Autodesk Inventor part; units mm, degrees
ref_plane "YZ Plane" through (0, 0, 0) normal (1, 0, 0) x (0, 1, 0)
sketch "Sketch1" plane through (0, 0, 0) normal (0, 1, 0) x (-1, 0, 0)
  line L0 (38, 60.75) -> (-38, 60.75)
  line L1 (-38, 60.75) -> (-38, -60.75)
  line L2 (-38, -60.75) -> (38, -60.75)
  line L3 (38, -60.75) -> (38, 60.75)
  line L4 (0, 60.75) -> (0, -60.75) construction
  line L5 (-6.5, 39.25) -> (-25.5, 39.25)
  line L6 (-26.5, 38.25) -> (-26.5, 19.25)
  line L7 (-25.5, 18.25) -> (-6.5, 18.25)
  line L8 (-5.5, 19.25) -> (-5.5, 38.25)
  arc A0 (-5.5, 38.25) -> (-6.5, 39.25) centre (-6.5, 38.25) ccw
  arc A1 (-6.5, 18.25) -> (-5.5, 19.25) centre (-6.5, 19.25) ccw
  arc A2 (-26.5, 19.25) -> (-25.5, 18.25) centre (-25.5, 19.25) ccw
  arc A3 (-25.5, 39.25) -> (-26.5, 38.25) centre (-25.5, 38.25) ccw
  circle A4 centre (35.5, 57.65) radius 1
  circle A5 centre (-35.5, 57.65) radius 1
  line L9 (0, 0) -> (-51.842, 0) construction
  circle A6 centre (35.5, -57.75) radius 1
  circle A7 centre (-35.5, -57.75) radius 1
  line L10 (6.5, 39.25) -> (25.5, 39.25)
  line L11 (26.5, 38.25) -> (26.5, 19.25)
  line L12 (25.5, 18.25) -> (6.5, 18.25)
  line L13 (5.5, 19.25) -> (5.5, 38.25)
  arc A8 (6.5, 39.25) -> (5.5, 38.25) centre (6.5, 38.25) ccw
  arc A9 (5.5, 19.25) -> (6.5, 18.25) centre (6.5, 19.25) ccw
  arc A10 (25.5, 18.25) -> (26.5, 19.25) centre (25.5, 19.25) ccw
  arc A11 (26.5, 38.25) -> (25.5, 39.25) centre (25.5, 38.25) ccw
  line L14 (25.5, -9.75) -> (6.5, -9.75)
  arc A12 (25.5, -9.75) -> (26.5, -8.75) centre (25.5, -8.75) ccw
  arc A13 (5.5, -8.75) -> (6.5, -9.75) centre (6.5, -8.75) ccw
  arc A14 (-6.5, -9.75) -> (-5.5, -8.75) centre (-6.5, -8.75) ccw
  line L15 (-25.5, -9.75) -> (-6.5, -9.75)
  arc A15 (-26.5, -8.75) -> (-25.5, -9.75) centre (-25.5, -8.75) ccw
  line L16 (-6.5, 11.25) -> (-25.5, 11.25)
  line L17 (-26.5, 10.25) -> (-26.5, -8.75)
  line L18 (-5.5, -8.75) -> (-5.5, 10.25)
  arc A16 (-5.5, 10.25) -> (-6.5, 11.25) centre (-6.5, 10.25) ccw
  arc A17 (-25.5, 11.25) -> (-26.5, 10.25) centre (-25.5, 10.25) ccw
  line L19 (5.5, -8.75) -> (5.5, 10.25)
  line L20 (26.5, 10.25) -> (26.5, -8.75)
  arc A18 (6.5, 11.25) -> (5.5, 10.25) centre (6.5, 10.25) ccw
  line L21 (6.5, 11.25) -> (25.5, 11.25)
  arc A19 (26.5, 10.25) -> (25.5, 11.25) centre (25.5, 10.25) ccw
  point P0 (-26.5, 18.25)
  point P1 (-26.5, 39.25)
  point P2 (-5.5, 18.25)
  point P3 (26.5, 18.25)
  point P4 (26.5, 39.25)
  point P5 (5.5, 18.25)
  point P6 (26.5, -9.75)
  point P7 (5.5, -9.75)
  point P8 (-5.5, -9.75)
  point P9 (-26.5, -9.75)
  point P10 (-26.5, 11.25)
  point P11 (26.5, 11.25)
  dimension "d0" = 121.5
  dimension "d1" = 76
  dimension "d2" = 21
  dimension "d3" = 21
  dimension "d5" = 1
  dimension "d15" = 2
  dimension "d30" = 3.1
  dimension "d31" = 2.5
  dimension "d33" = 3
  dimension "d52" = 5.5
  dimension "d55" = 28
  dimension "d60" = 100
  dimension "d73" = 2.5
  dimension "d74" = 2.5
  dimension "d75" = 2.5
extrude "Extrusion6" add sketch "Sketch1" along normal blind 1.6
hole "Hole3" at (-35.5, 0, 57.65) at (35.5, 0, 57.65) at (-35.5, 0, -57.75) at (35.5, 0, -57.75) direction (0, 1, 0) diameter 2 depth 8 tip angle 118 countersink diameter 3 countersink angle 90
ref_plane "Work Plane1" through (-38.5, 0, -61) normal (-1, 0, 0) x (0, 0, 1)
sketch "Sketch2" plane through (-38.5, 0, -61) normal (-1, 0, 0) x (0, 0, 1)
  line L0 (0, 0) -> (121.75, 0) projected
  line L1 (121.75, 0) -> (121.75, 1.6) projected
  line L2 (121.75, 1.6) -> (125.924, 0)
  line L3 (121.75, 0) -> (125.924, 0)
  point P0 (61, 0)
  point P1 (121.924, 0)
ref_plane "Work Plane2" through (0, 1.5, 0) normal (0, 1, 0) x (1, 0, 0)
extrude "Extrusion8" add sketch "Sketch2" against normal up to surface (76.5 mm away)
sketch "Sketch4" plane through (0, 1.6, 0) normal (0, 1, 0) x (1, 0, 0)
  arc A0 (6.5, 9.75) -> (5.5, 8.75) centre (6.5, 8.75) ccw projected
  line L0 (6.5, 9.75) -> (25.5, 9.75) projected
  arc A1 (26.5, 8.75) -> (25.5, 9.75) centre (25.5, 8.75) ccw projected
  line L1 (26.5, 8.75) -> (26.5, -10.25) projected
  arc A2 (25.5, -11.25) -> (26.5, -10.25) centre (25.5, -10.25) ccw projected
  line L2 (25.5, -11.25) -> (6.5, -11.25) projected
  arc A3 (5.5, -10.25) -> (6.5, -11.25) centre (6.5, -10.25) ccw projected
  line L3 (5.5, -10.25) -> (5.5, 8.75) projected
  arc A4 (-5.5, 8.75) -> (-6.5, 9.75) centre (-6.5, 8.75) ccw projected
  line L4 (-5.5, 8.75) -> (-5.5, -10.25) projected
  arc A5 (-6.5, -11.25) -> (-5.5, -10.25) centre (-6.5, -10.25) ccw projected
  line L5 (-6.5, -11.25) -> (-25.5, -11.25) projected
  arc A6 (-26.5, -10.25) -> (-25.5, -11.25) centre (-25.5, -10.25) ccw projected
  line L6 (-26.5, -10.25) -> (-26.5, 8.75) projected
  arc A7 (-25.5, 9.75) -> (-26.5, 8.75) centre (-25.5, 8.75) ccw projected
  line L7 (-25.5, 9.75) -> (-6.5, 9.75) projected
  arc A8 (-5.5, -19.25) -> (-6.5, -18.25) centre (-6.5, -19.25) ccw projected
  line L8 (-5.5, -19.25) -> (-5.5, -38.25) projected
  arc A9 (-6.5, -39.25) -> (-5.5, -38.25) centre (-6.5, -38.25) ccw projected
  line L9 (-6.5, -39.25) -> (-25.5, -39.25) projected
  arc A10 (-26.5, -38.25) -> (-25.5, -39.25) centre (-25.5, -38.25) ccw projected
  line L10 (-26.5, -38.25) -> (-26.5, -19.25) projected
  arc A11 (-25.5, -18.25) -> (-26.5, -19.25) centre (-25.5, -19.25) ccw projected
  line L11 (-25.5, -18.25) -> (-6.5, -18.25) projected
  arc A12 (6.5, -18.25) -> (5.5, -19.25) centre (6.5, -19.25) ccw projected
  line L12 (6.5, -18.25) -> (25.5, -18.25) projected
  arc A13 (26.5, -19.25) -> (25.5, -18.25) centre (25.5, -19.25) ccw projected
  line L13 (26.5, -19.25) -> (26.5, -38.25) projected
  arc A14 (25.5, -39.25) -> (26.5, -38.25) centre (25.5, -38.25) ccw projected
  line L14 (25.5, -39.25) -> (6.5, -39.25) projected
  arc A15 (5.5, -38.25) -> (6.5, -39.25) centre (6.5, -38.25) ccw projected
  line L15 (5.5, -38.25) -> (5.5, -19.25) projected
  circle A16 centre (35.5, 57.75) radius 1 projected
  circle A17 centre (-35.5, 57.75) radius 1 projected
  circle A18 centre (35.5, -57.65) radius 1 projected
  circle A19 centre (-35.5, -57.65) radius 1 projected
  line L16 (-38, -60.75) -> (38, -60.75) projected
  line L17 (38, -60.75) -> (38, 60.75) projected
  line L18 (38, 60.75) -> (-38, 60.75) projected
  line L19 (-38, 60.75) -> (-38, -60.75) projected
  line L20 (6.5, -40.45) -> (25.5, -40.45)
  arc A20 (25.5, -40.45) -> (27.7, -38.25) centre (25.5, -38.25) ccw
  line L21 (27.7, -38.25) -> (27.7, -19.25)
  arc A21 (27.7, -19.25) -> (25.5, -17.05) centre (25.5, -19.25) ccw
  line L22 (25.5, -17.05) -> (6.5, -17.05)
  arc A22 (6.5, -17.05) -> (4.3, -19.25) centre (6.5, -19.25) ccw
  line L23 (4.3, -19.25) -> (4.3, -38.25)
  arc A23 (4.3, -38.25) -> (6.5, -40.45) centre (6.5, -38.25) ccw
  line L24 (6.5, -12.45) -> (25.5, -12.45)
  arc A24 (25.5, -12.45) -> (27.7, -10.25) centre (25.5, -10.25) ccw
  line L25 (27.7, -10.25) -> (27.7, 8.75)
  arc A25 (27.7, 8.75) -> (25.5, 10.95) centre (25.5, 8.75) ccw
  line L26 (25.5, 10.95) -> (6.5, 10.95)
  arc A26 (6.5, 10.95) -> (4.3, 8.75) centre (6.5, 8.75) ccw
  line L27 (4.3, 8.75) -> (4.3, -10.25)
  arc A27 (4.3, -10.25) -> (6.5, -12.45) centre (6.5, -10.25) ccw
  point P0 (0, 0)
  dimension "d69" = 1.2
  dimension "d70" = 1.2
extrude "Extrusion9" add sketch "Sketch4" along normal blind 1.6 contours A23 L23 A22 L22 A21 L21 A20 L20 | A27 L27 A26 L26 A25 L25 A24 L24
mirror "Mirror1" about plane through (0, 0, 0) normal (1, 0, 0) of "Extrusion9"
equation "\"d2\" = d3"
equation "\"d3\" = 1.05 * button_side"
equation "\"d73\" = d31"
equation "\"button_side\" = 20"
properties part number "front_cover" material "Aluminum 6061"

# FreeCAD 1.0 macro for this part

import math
import FreeCAD as App
import Part
import Sketcher

V = App.Vector
Q = App.Units.Quantity

doc = App.newDocument("Part")
body = doc.addObject("PartDesign::Body", "Body")

# Sketch on XZ plane
sketch1 = doc.addObject("Sketcher::SketchObject", "Sketch")
body.addObject(sketch1)
sketch1.AttachmentSupport = (doc.XZ_Plane, [""])
sketch1.MapMode = "FlatFace"
sketch1.addGeometry([
    Part.LineSegment(V(-38, -60.75, 0), V(-38, 60.75, 0)),  # 0
    Part.LineSegment(V(-38, 60.75, 0), V(38, 60.75, 0)),  # 1
    Part.LineSegment(V(38, 60.75, 0), V(38, -60.75, 0)),  # 2
    Part.LineSegment(V(38, -60.75, 0), V(-38, -60.75, 0)),  # 3
    Part.Circle(V(35.5, -57.75, 0), V(0, 0, 1), 1),  # 4
    Part.Circle(V(-35.5, -57.75, 0), V(0, 0, 1), 1),  # 5
    Part.ArcOfCircle(Part.Circle(V(6.5, -8.75, 0), V(0, 0, 1), 1), math.radians(180), math.radians(270)),  # 6
    Part.LineSegment(V(6.5, -9.75, 0), V(25.5, -9.75, 0)),  # 7
    Part.ArcOfCircle(Part.Circle(V(25.5, -8.75, 0), V(0, 0, 1), 1), math.radians(-90), math.radians(0)),  # 8
    Part.LineSegment(V(26.5, -8.75, 0), V(26.5, 10.25, 0)),  # 9
    Part.ArcOfCircle(Part.Circle(V(25.5, 10.25, 0), V(0, 0, 1), 1), math.radians(0), math.radians(90)),  # 10
    Part.LineSegment(V(25.5, 11.25, 0), V(6.5, 11.25, 0)),  # 11
    Part.ArcOfCircle(Part.Circle(V(6.5, 10.25, 0), V(0, 0, 1), 1), math.radians(90), math.radians(180)),  # 12
    Part.LineSegment(V(5.5, 10.25, 0), V(5.5, -8.75, 0)),  # 13
    Part.LineSegment(V(25.5, 39.25, 0), V(6.5, 39.25, 0)),  # 14
    Part.ArcOfCircle(Part.Circle(V(6.5, 38.25, 0), V(0, 0, 1), 1), math.radians(90), math.radians(180)),  # 15
    Part.LineSegment(V(5.5, 38.25, 0), V(5.5, 19.25, 0)),  # 16
    Part.ArcOfCircle(Part.Circle(V(6.5, 19.25, 0), V(0, 0, 1), 1), math.radians(180), math.radians(270)),  # 17
    Part.LineSegment(V(6.5, 18.25, 0), V(25.5, 18.25, 0)),  # 18
    Part.ArcOfCircle(Part.Circle(V(25.5, 19.25, 0), V(0, 0, 1), 1), math.radians(-90), math.radians(0)),  # 19
    Part.LineSegment(V(26.5, 19.25, 0), V(26.5, 38.25, 0)),  # 20
    Part.ArcOfCircle(Part.Circle(V(25.5, 38.25, 0), V(0, 0, 1), 1), math.radians(0), math.radians(90)),  # 21
    Part.Circle(V(35.5, 57.65, 0), V(0, 0, 1), 1),  # 22
    Part.ArcOfCircle(Part.Circle(V(-25.5, -8.75, 0), V(0, 0, 1), 1), math.radians(180), math.radians(270)),  # 23
    Part.LineSegment(V(-25.5, -9.75, 0), V(-6.5, -9.75, 0)),  # 24
    Part.ArcOfCircle(Part.Circle(V(-6.5, -8.75, 0), V(0, 0, 1), 1), math.radians(-90), math.radians(0)),  # 25
    Part.LineSegment(V(-5.5, -8.75, 0), V(-5.5, 10.25, 0)),  # 26
    Part.ArcOfCircle(Part.Circle(V(-6.5, 10.25, 0), V(0, 0, 1), 1), math.radians(0), math.radians(90)),  # 27
    Part.LineSegment(V(-6.5, 11.25, 0), V(-25.5, 11.25, 0)),  # 28
    Part.ArcOfCircle(Part.Circle(V(-25.5, 10.25, 0), V(0, 0, 1), 1), math.radians(90), math.radians(180)),  # 29
    Part.LineSegment(V(-26.5, 10.25, 0), V(-26.5, -8.75, 0)),  # 30
    Part.ArcOfCircle(Part.Circle(V(-6.5, 38.25, 0), V(0, 0, 1), 1), math.radians(0), math.radians(90)),  # 31
    Part.LineSegment(V(-6.5, 39.25, 0), V(-25.5, 39.25, 0)),  # 32
    Part.ArcOfCircle(Part.Circle(V(-25.5, 38.25, 0), V(0, 0, 1), 1), math.radians(90), math.radians(180)),  # 33
    Part.LineSegment(V(-26.5, 38.25, 0), V(-26.5, 19.25, 0)),  # 34
    Part.ArcOfCircle(Part.Circle(V(-25.5, 19.25, 0), V(0, 0, 1), 1), math.radians(180), math.radians(270)),  # 35
    Part.LineSegment(V(-25.5, 18.25, 0), V(-6.5, 18.25, 0)),  # 36
    Part.ArcOfCircle(Part.Circle(V(-6.5, 19.25, 0), V(0, 0, 1), 1), math.radians(-90), math.radians(0)),  # 37
    Part.LineSegment(V(-5.5, 19.25, 0), V(-5.5, 38.25, 0)),  # 38
    Part.Circle(V(-35.5, 57.65, 0), V(0, 0, 1), 1),  # 39
], False)
sketch1.addConstraint([
    Sketcher.Constraint("Coincident", 0, 2, 1, 1),
    Sketcher.Constraint("Coincident", 1, 2, 2, 1),
    Sketcher.Constraint("Coincident", 2, 2, 3, 1),
    Sketcher.Constraint("Coincident", 3, 2, 0, 1),
    Sketcher.Constraint("Tangent", 6, 2, 7, 1),
    Sketcher.Constraint("Tangent", 7, 2, 8, 1),
    Sketcher.Constraint("Tangent", 8, 2, 9, 1),
    Sketcher.Constraint("Tangent", 9, 2, 10, 1),
    Sketcher.Constraint("Tangent", 10, 2, 11, 1),
    Sketcher.Constraint("Tangent", 11, 2, 12, 1),
    Sketcher.Constraint("Tangent", 12, 2, 13, 1),
    Sketcher.Constraint("Tangent", 13, 2, 6, 1),
    Sketcher.Constraint("Tangent", 14, 2, 15, 1),
    Sketcher.Constraint("Tangent", 15, 2, 16, 1),
    Sketcher.Constraint("Tangent", 16, 2, 17, 1),
    Sketcher.Constraint("Tangent", 17, 2, 18, 1),
    Sketcher.Constraint("Tangent", 18, 2, 19, 1),
    Sketcher.Constraint("Tangent", 19, 2, 20, 1),
    Sketcher.Constraint("Tangent", 20, 2, 21, 1),
    Sketcher.Constraint("Tangent", 21, 2, 14, 1),
    Sketcher.Constraint("Tangent", 23, 2, 24, 1),
    Sketcher.Constraint("Tangent", 24, 2, 25, 1),
    Sketcher.Constraint("Tangent", 25, 2, 26, 1),
    Sketcher.Constraint("Tangent", 26, 2, 27, 1),
    Sketcher.Constraint("Tangent", 27, 2, 28, 1),
    Sketcher.Constraint("Tangent", 28, 2, 29, 1),
    Sketcher.Constraint("Tangent", 29, 2, 30, 1),
    Sketcher.Constraint("Tangent", 30, 2, 23, 1),
    Sketcher.Constraint("Tangent", 31, 2, 32, 1),
    Sketcher.Constraint("Tangent", 32, 2, 33, 1),
    Sketcher.Constraint("Tangent", 33, 2, 34, 1),
    Sketcher.Constraint("Tangent", 34, 2, 35, 1),
    Sketcher.Constraint("Tangent", 35, 2, 36, 1),
    Sketcher.Constraint("Tangent", 36, 2, 37, 1),
    Sketcher.Constraint("Tangent", 37, 2, 38, 1),
    Sketcher.Constraint("Tangent", 38, 2, 31, 1),
    Sketcher.Constraint("Vertical", 0),
    Sketcher.Constraint("Horizontal", 1),
    Sketcher.Constraint("Vertical", 2),
    Sketcher.Constraint("Horizontal", 3),
    Sketcher.Constraint("Horizontal", 7),
    Sketcher.Constraint("Vertical", 9),
    Sketcher.Constraint("Horizontal", 11),
    Sketcher.Constraint("Vertical", 13),
    Sketcher.Constraint("Horizontal", 14),
    Sketcher.Constraint("Vertical", 16),
    Sketcher.Constraint("Horizontal", 18),
    Sketcher.Constraint("Vertical", 20),
    Sketcher.Constraint("Horizontal", 24),
    Sketcher.Constraint("Vertical", 26),
    Sketcher.Constraint("Horizontal", 28),
    Sketcher.Constraint("Vertical", 30),
    Sketcher.Constraint("Horizontal", 32),
    Sketcher.Constraint("Vertical", 34),
    Sketcher.Constraint("Horizontal", 36),
    Sketcher.Constraint("Vertical", 38),
    Sketcher.Constraint("Equal", 4, 5),
    Sketcher.Constraint("Equal", 5, 6),
    Sketcher.Constraint("Equal", 6, 8),
    Sketcher.Constraint("Equal", 8, 10),
    Sketcher.Constraint("Equal", 10, 12),
    Sketcher.Constraint("Equal", 12, 15),
    Sketcher.Constraint("Equal", 15, 17),
    Sketcher.Constraint("Equal", 17, 19),
    Sketcher.Constraint("Equal", 19, 21),
    Sketcher.Constraint("Equal", 21, 22),
    Sketcher.Constraint("Equal", 22, 23),
    Sketcher.Constraint("Equal", 23, 25),
    Sketcher.Constraint("Equal", 25, 27),
    Sketcher.Constraint("Equal", 27, 29),
    Sketcher.Constraint("Equal", 29, 31),
    Sketcher.Constraint("Equal", 31, 33),
    Sketcher.Constraint("Equal", 33, 35),
    Sketcher.Constraint("Equal", 35, 37),
    Sketcher.Constraint("Equal", 37, 39),
    Sketcher.Constraint("Symmetric", 0, 2, 2, 2, -1, 1),
    Sketcher.Constraint("Symmetric", 4, 3, 5, 3, -2),
    Sketcher.Constraint("Symmetric", 8, 3, 23, 3, -2),
    Sketcher.Constraint("Symmetric", 12, 3, 27, 3, -2),
    Sketcher.Constraint("Symmetric", 15, 3, 31, 3, -2),
    Sketcher.Constraint("Symmetric", 19, 3, 35, 3, -2),
    Sketcher.Constraint("Symmetric", 22, 3, 39, 3, -2),
    Sketcher.Constraint("Vertical", 12, 3, 15, 3),
    Sketcher.Constraint("Vertical", 10, 3, 19, 3),
    Sketcher.Constraint("Vertical", 4, 3, 22, 3),
    Sketcher.Constraint("Equal", 36, 9),
    Sketcher.Constraint("Equal", 13, 16),
    Sketcher.Constraint("Diameter", 4, Q("2 mm")),
    Sketcher.Constraint("DistanceX", 1, 1, 1, 2, Q("76 mm")),
    Sketcher.Constraint("DistanceY", 0, 1, 0, 2, Q("121.5 mm")),
    Sketcher.Constraint("DistanceX", 8, 3, 4, 3, Q("10 mm")),
    Sketcher.Constraint("DistanceY", 12, 3, 15, 3, Q("28 mm")),
    Sketcher.Constraint("DistanceY", 2, 2, 4, 3, Q("3 mm")),
    Sketcher.Constraint("DistanceX", -1, 1, 12, 2, Q("5.5 mm")),
    Sketcher.Constraint("DistanceX", 0, 2, 39, 3, Q("2.5 mm")),
    Sketcher.Constraint("DistanceY", 39, 3, 0, 2, Q("3.1 mm")),
    Sketcher.Constraint("DistanceY", 4, 3, 6, 3, Q("49 mm")),
])
pad1 = doc.addObject("PartDesign::Pad", "Pad")
body.addObject(pad1)
pad1.Profile = sketch1
pad1.Length = 1.6
pad1.Reversed = True

# Sketch on XZ plane
sketch2 = doc.addObject("Sketcher::SketchObject", "Sketch001")
body.addObject(sketch2)
sketch2.AttachmentSupport = (doc.XZ_Plane, [""])
sketch2.MapMode = "FlatFace"
sketch2.addGeometry([
    Part.Circle(V(-35.5, 57.65, 0), V(0, 0, 1), 1),
    Part.Circle(V(35.5, 57.65, 0), V(0, 0, 1), 1),
    Part.Circle(V(-35.5, -57.75, 0), V(0, 0, 1), 1),
    Part.Circle(V(35.5, -57.75, 0), V(0, 0, 1), 1),
], False)
sketch2.addConstraint([
    Sketcher.Constraint("Equal", 0, 1),
    Sketcher.Constraint("Equal", 1, 2),
    Sketcher.Constraint("Equal", 2, 3),
    Sketcher.Constraint("Symmetric", 0, 3, 1, 3, -2),
    Sketcher.Constraint("Symmetric", 2, 3, 3, 3, -2),
    Sketcher.Constraint("Vertical", 0, 3, 2, 3),
    Sketcher.Constraint("Diameter", 0, Q("2 mm")),
    Sketcher.Constraint("DistanceX", 0, 3, 1, 3, Q("71 mm")),
    Sketcher.Constraint("DistanceY", 2, 3, 0, 3, Q("115.4 mm")),
    Sketcher.Constraint("DistanceY", -1, 1, 0, 3, Q("57.65 mm")),
])
doc.recompute()
hole = doc.addObject("PartDesign::Hole", "Hole")
body.addObject(hole)
hole.Profile = sketch2
hole.ThreadType = "None"
hole.Diameter = 2
hole.DepthType = "Dimension"
hole.Depth = 8
hole.DrillPoint = "Angled"
hole.DrillPointAngle = 118
hole.HoleCutType = "Countersink"
hole.HoleCutDiameter = 3
hole.HoleCutCountersinkAngle = 90

# Sketch on YZ plane
sketch3 = doc.addObject("Sketcher::SketchObject", "Sketch002")
body.addObject(sketch3)
sketch3.AttachmentSupport = (doc.YZ_Plane, [""])
sketch3.MapMode = "FlatFace"
sketch3.AttachmentOffset = App.Placement(V(0, 0, -38.5), App.Rotation())
sketch3.addGeometry([
    Part.LineSegment(V(1.6, 60.75, 0), V(0, 60.75, 0)),
    Part.LineSegment(V(0, 60.75, 0), V(0, 64.924, 0)),
    Part.LineSegment(V(0, 64.924, 0), V(1.6, 60.75, 0)),
], False)
sketch3.addConstraint([
    Sketcher.Constraint("Coincident", 0, 2, 1, 1),
    Sketcher.Constraint("Coincident", 1, 2, 2, 1),
    Sketcher.Constraint("Coincident", 2, 2, 0, 1),
    Sketcher.Constraint("Horizontal", 0),
    Sketcher.Constraint("Vertical", 1),
    Sketcher.Constraint("PointOnObject", 0, 2, -2),
    Sketcher.Constraint("DistanceX", 0, 2, 0, 1, Q("1.6 mm")),
    Sketcher.Constraint("DistanceY", 1, 1, 1, 2, Q("4.174 mm")),
    Sketcher.Constraint("DistanceY", -1, 1, 0, 2, Q("60.75 mm")),
])
pad2 = doc.addObject("PartDesign::Pad", "Pad001")
body.addObject(pad2)
pad2.Profile = sketch3
pad2.Length = 76.5

# Sketch on XZ plane
sketch4 = doc.addObject("Sketcher::SketchObject", "Sketch003")
body.addObject(sketch4)
sketch4.AttachmentSupport = (doc.XZ_Plane, [""])
sketch4.MapMode = "FlatFace"
sketch4.AttachmentOffset = App.Placement(V(0, 0, -1.6), App.Rotation())
sketch4.addGeometry([
    Part.ArcOfCircle(Part.Circle(V(6.5, 38.25, 0), V(0, 0, 1), 2.2), math.radians(90), math.radians(180)),  # 0
    Part.LineSegment(V(6.5, 40.45, 0), V(25.5, 40.45, 0)),  # 1
    Part.ArcOfCircle(Part.Circle(V(25.5, 38.25, 0), V(0, 0, 1), 2.2), math.radians(0), math.radians(90)),  # 2
    Part.LineSegment(V(27.7, 38.25, 0), V(27.7, 19.25, 0)),  # 3
    Part.ArcOfCircle(Part.Circle(V(25.5, 19.25, 0), V(0, 0, 1), 2.2), math.radians(-90), math.radians(0)),  # 4
    Part.LineSegment(V(25.5, 17.05, 0), V(6.5, 17.05, 0)),  # 5
    Part.ArcOfCircle(Part.Circle(V(6.5, 19.25, 0), V(0, 0, 1), 2.2), math.radians(180), math.radians(270)),  # 6
    Part.LineSegment(V(4.3, 19.25, 0), V(4.3, 38.25, 0)),  # 7
    Part.ArcOfCircle(Part.Circle(V(6.5, 19.25, 0), V(0, 0, 1), 1), math.radians(180), math.radians(270)),  # 8
    Part.LineSegment(V(6.5, 18.25, 0), V(25.5, 18.25, 0)),  # 9
    Part.ArcOfCircle(Part.Circle(V(25.5, 19.25, 0), V(0, 0, 1), 1), math.radians(-90), math.radians(0)),  # 10
    Part.LineSegment(V(26.5, 19.25, 0), V(26.5, 38.25, 0)),  # 11
    Part.ArcOfCircle(Part.Circle(V(25.5, 38.25, 0), V(0, 0, 1), 1), math.radians(0), math.radians(90)),  # 12
    Part.LineSegment(V(25.5, 39.25, 0), V(6.5, 39.25, 0)),  # 13
    Part.ArcOfCircle(Part.Circle(V(6.5, 38.25, 0), V(0, 0, 1), 1), math.radians(90), math.radians(180)),  # 14
    Part.LineSegment(V(5.5, 38.25, 0), V(5.5, 19.25, 0)),  # 15
    Part.ArcOfCircle(Part.Circle(V(6.5, 10.25, 0), V(0, 0, 1), 2.2), math.radians(90), math.radians(180)),  # 16
    Part.LineSegment(V(6.5, 12.45, 0), V(25.5, 12.45, 0)),  # 17
    Part.ArcOfCircle(Part.Circle(V(25.5, 10.25, 0), V(0, 0, 1), 2.2), math.radians(0), math.radians(90)),  # 18
    Part.LineSegment(V(27.7, 10.25, 0), V(27.7, -8.75, 0)),  # 19
    Part.ArcOfCircle(Part.Circle(V(25.5, -8.75, 0), V(0, 0, 1), 2.2), math.radians(-90), math.radians(0)),  # 20
    Part.LineSegment(V(25.5, -10.95, 0), V(6.5, -10.95, 0)),  # 21
    Part.ArcOfCircle(Part.Circle(V(6.5, -8.75, 0), V(0, 0, 1), 2.2), math.radians(180), math.radians(270)),  # 22
    Part.LineSegment(V(4.3, -8.75, 0), V(4.3, 10.25, 0)),  # 23
    Part.ArcOfCircle(Part.Circle(V(6.5, -8.75, 0), V(0, 0, 1), 1), math.radians(180), math.radians(270)),  # 24
    Part.LineSegment(V(6.5, -9.75, 0), V(25.5, -9.75, 0)),  # 25
    Part.ArcOfCircle(Part.Circle(V(25.5, -8.75, 0), V(0, 0, 1), 1), math.radians(-90), math.radians(0)),  # 26
    Part.LineSegment(V(26.5, -8.75, 0), V(26.5, 10.25, 0)),  # 27
    Part.ArcOfCircle(Part.Circle(V(25.5, 10.25, 0), V(0, 0, 1), 1), math.radians(0), math.radians(90)),  # 28
    Part.LineSegment(V(25.5, 11.25, 0), V(6.5, 11.25, 0)),  # 29
    Part.ArcOfCircle(Part.Circle(V(6.5, 10.25, 0), V(0, 0, 1), 1), math.radians(90), math.radians(180)),  # 30
    Part.LineSegment(V(5.5, 10.25, 0), V(5.5, -8.75, 0)),  # 31
], False)
sketch4.addConstraint([
    Sketcher.Constraint("Tangent", 0, 1, 1, 1),
    Sketcher.Constraint("Tangent", 1, 2, 2, 2),
    Sketcher.Constraint("Tangent", 2, 1, 3, 1),
    Sketcher.Constraint("Tangent", 3, 2, 4, 2),
    Sketcher.Constraint("Tangent", 4, 1, 5, 1),
    Sketcher.Constraint("Tangent", 5, 2, 6, 2),
    Sketcher.Constraint("Tangent", 6, 1, 7, 1),
    Sketcher.Constraint("Tangent", 7, 2, 0, 2),
    Sketcher.Constraint("Tangent", 8, 2, 9, 1),
    Sketcher.Constraint("Tangent", 9, 2, 10, 1),
    Sketcher.Constraint("Tangent", 10, 2, 11, 1),
    Sketcher.Constraint("Tangent", 11, 2, 12, 1),
    Sketcher.Constraint("Tangent", 12, 2, 13, 1),
    Sketcher.Constraint("Tangent", 13, 2, 14, 1),
    Sketcher.Constraint("Tangent", 14, 2, 15, 1),
    Sketcher.Constraint("Tangent", 15, 2, 8, 1),
    Sketcher.Constraint("Tangent", 16, 1, 17, 1),
    Sketcher.Constraint("Tangent", 17, 2, 18, 2),
    Sketcher.Constraint("Tangent", 18, 1, 19, 1),
    Sketcher.Constraint("Tangent", 19, 2, 20, 2),
    Sketcher.Constraint("Tangent", 20, 1, 21, 1),
    Sketcher.Constraint("Tangent", 21, 2, 22, 2),
    Sketcher.Constraint("Tangent", 22, 1, 23, 1),
    Sketcher.Constraint("Tangent", 23, 2, 16, 2),
    Sketcher.Constraint("Tangent", 24, 2, 25, 1),
    Sketcher.Constraint("Tangent", 25, 2, 26, 1),
    Sketcher.Constraint("Tangent", 26, 2, 27, 1),
    Sketcher.Constraint("Tangent", 27, 2, 28, 1),
    Sketcher.Constraint("Tangent", 28, 2, 29, 1),
    Sketcher.Constraint("Tangent", 29, 2, 30, 1),
    Sketcher.Constraint("Tangent", 30, 2, 31, 1),
    Sketcher.Constraint("Tangent", 31, 2, 24, 1),
    Sketcher.Constraint("Horizontal", 1),
    Sketcher.Constraint("Vertical", 3),
    Sketcher.Constraint("Horizontal", 5),
    Sketcher.Constraint("Vertical", 7),
    Sketcher.Constraint("Horizontal", 9),
    Sketcher.Constraint("Vertical", 11),
    Sketcher.Constraint("Horizontal", 13),
    Sketcher.Constraint("Vertical", 15),
    Sketcher.Constraint("Horizontal", 17),
    Sketcher.Constraint("Vertical", 19),
    Sketcher.Constraint("Horizontal", 21),
    Sketcher.Constraint("Vertical", 23),
    Sketcher.Constraint("Horizontal", 25),
    Sketcher.Constraint("Vertical", 27),
    Sketcher.Constraint("Horizontal", 29),
    Sketcher.Constraint("Vertical", 31),
    Sketcher.Constraint("Coincident", 8, 3, 6, 3),
    Sketcher.Constraint("Coincident", 10, 3, 4, 3),
    Sketcher.Constraint("Coincident", 12, 3, 2, 3),
    Sketcher.Constraint("Coincident", 24, 3, 22, 3),
    Sketcher.Constraint("Coincident", 26, 3, 20, 3),
    Sketcher.Constraint("Coincident", 28, 3, 18, 3),
    Sketcher.Constraint("Equal", 0, 2),
    Sketcher.Constraint("Equal", 2, 4),
    Sketcher.Constraint("Equal", 4, 6),
    Sketcher.Constraint("Equal", 12, 14),
    Sketcher.Constraint("Equal", 6, 16),
    Sketcher.Constraint("Equal", 16, 18),
    Sketcher.Constraint("Equal", 18, 20),
    Sketcher.Constraint("Equal", 20, 22),
    Sketcher.Constraint("Equal", 14, 24),
    Sketcher.Constraint("Equal", 28, 30),
    Sketcher.Constraint("Vertical", 14, 3, 16, 3),
    Sketcher.Constraint("Vertical", 12, 3, 18, 3),
    Sketcher.Constraint("Equal", 29, 3),
    Sketcher.Constraint("Equal", 15, 19),
    Sketcher.Constraint("Radius", 8, Q("1 mm")),
    Sketcher.Constraint("Radius", 0, Q("2.2 mm")),
    Sketcher.Constraint("DistanceX", 1, 1, 1, 2, Q("19 mm")),
    Sketcher.Constraint("DistanceY", 16, 3, 6, 3, Q("9 mm")),
    Sketcher.Constraint("DistanceX", -1, 1, 0, 3, Q("6.5 mm")),
    Sketcher.Constraint("DistanceY", -1, 1, 0, 3, Q("38.25 mm")),
])
pad3 = doc.addObject("PartDesign::Pad", "Pad002")
body.addObject(pad3)
pad3.Profile = sketch4
pad3.Length = 1.6
pad3.Reversed = True
doc.recompute()

mirrored = doc.addObject("PartDesign::Mirrored", "Mirrored")
body.addObject(mirrored)
mirrored.Originals = [pad3]
mirrored.MirrorPlane = (doc.YZ_Plane, [""])
body.Tip = mirrored

doc.recompute()
